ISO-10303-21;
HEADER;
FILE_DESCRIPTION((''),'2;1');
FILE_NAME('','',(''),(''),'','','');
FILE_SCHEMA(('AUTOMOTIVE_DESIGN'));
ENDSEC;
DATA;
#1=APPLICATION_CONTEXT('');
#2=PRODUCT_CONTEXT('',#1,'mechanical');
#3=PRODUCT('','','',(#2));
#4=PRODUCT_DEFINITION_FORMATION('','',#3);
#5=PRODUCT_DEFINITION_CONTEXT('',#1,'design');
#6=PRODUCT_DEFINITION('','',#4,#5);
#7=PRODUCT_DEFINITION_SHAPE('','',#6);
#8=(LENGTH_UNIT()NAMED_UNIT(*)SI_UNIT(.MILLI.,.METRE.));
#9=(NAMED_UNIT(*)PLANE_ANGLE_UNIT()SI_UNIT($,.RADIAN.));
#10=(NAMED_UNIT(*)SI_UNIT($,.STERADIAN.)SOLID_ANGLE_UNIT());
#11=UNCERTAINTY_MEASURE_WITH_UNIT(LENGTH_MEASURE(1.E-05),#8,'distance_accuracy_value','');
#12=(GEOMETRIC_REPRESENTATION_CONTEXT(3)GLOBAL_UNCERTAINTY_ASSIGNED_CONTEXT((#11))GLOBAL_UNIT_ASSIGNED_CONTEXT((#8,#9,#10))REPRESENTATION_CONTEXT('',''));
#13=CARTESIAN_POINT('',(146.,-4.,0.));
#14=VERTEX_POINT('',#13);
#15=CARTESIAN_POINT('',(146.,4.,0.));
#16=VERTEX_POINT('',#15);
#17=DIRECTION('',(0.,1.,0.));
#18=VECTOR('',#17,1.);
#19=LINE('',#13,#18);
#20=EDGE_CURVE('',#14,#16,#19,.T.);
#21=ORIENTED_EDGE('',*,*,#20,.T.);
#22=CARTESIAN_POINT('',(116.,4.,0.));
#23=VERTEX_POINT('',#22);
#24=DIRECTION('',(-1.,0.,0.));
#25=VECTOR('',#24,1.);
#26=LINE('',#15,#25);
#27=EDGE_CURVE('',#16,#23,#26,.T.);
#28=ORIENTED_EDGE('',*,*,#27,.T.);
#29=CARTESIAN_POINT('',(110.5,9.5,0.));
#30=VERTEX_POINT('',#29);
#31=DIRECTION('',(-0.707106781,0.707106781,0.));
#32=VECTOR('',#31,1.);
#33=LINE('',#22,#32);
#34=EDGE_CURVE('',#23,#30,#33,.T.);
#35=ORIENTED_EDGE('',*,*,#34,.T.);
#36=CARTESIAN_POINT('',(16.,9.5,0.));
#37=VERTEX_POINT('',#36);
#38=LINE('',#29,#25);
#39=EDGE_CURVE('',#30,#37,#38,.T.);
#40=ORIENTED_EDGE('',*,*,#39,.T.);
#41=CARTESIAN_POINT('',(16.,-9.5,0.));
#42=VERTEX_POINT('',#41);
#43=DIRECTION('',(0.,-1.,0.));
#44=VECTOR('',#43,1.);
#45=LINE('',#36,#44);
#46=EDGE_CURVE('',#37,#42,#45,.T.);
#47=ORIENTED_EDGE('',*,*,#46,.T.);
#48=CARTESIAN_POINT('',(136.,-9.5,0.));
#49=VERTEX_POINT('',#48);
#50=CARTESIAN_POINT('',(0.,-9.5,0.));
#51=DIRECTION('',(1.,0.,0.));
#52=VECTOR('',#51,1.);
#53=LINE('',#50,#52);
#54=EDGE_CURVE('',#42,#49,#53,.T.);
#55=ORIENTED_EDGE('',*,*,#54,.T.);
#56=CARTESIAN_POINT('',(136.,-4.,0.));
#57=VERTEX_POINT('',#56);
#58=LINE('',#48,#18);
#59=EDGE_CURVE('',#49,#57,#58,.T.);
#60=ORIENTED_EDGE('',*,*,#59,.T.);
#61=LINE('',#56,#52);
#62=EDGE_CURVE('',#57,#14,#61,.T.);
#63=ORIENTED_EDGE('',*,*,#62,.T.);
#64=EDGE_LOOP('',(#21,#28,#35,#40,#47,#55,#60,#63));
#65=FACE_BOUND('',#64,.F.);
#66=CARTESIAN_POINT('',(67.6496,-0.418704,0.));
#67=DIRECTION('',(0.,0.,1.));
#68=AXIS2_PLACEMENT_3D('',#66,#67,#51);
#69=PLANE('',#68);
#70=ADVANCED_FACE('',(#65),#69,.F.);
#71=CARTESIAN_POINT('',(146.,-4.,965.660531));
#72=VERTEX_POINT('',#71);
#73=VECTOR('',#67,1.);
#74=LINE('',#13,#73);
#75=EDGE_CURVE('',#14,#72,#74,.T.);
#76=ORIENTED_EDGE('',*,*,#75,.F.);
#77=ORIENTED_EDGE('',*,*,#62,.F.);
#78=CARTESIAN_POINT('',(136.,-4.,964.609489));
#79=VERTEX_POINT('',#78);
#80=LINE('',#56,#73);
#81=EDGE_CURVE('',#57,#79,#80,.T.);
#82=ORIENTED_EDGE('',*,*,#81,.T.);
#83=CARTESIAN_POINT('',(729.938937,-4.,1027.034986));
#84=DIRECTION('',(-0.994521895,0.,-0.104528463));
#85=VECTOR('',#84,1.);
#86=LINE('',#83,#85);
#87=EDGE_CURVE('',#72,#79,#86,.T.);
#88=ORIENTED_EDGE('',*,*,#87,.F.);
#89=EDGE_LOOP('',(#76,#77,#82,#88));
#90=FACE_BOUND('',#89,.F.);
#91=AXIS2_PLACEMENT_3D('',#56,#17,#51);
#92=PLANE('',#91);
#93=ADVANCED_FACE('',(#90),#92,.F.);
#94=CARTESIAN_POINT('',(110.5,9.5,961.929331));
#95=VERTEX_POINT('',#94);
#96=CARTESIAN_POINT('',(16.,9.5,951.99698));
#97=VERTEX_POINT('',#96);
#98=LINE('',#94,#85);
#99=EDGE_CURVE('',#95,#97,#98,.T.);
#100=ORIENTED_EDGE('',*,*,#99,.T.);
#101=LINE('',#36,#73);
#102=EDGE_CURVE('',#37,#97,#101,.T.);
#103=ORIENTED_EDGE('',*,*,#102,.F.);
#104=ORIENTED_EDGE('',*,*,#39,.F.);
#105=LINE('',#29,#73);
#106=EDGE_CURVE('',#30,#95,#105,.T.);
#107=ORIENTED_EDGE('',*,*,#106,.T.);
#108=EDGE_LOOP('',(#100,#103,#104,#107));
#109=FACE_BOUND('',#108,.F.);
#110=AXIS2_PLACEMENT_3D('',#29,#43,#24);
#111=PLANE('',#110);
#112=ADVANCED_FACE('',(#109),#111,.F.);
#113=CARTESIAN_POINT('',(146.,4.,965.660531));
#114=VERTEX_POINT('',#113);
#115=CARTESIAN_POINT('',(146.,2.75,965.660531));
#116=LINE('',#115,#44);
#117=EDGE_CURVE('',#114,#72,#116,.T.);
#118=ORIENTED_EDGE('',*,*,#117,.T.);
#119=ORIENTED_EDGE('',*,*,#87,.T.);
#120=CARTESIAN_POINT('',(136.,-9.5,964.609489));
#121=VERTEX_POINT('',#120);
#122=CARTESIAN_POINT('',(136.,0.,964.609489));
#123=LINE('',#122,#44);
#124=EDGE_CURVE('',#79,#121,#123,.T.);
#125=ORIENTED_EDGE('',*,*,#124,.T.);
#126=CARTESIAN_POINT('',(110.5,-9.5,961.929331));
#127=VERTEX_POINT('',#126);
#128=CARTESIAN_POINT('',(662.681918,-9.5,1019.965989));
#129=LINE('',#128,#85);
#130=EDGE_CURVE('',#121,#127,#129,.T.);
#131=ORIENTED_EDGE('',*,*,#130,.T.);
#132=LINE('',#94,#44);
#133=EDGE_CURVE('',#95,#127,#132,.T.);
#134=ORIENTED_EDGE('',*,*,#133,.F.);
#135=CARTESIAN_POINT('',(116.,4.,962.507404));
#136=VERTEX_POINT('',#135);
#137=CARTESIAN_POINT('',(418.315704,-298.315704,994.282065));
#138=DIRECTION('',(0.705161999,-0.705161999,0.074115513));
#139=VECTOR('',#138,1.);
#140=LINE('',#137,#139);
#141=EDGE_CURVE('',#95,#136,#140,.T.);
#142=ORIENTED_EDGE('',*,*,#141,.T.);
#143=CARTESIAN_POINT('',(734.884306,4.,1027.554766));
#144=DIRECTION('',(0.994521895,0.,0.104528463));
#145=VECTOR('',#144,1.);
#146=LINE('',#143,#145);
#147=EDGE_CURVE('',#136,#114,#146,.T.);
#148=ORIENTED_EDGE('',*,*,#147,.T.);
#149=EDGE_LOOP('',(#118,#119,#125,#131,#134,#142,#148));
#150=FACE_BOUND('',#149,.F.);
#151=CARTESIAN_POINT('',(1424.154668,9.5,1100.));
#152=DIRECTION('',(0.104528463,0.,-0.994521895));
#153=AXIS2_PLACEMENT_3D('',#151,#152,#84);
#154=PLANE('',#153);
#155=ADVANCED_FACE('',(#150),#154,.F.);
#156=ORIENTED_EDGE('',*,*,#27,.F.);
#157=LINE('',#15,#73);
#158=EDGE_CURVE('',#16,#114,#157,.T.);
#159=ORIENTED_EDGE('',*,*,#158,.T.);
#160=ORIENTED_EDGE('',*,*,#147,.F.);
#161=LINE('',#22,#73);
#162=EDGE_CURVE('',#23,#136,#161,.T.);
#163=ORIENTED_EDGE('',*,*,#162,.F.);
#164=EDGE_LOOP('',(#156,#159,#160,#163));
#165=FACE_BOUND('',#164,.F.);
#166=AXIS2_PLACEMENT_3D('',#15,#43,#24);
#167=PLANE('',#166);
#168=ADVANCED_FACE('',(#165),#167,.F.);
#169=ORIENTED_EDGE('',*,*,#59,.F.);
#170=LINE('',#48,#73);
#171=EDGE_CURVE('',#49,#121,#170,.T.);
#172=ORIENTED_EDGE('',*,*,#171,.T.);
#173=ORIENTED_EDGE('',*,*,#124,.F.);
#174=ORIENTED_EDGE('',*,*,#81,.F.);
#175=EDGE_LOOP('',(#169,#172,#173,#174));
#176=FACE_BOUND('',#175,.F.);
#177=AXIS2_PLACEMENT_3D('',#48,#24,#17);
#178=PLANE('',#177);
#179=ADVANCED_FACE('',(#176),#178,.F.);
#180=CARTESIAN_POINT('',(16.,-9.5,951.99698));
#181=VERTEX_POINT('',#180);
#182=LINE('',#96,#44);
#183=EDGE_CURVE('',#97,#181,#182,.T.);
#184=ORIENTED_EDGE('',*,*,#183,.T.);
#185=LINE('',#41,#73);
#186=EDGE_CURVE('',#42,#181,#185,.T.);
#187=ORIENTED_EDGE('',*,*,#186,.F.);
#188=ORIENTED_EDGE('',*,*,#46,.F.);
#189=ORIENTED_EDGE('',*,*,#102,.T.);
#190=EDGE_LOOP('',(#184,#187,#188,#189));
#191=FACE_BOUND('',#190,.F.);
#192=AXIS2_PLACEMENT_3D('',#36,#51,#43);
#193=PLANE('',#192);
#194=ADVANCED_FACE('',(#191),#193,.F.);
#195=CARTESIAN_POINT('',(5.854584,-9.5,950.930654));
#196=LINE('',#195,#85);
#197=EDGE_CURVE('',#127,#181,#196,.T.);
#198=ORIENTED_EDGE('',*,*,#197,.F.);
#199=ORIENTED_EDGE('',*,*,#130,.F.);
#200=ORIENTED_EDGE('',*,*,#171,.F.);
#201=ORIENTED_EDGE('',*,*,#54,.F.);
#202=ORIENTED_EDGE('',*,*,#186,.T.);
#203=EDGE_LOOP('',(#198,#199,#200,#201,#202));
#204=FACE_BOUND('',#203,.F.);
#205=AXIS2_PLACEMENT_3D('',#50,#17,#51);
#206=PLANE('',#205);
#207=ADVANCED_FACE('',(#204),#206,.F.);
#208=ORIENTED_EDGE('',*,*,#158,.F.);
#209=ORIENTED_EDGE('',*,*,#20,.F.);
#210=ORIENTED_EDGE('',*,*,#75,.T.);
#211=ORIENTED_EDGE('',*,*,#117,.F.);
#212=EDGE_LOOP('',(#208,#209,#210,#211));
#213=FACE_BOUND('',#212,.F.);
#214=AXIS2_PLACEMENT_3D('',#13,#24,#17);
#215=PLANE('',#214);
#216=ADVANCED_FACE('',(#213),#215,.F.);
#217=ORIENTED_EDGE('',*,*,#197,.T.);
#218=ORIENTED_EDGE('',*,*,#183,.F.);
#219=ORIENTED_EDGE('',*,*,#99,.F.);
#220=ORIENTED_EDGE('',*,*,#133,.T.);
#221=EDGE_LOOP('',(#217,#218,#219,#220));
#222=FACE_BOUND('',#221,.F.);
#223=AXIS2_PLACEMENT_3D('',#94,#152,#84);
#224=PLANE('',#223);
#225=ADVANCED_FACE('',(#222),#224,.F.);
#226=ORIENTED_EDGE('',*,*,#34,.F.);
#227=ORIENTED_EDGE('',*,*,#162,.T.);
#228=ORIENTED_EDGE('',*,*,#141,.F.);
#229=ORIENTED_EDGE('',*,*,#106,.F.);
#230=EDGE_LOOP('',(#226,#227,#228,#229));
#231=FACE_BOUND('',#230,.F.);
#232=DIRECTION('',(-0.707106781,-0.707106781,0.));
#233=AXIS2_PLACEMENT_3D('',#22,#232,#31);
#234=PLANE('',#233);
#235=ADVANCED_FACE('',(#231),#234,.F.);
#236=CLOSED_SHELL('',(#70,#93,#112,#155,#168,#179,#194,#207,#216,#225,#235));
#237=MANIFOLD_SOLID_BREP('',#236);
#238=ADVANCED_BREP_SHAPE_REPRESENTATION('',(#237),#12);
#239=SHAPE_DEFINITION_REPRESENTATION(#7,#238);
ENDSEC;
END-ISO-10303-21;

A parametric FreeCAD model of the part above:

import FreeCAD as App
import Part
import Sketcher

V = App.Vector
Q = App.Units.Quantity

doc = App.newDocument("Part")
body = doc.addObject("PartDesign::Body", "Body")

# Sketch on XY plane
sketch1 = body.newObject("Sketcher::SketchObject", "Sketch")
sketch1.AttachmentSupport = (doc.getObject("XY_Plane"), [""])
sketch1.MapMode = "FlatFace"
sketch1.addGeometry(Part.LineSegment(V(0, -4, 0), V(0, -10, 0)), False)
sketch1.addGeometry(Part.LineSegment(V(0, -10, 0), V(136, -10, 0)), False)
sketch1.addGeometry(Part.LineSegment(V(136, -10, 0), V(136, -4, 0)), False)
sketch1.addGeometry(Part.LineSegment(V(136, -4, 0), V(146, -4, 0)), False)
sketch1.addGeometry(Part.LineSegment(V(146, -4, 0), V(146, 4, 0)), False)
sketch1.addGeometry(Part.LineSegment(V(146, 4, 0), V(116, 4, 0)), False)
sketch1.addGeometry(Part.LineSegment(V(116, 4, 0), V(110, 10, 0)), False)
sketch1.addGeometry(Part.LineSegment(V(110, 10, 0), V(0, 10, 0)), False)
sketch1.addGeometry(Part.LineSegment(V(0, 10, 0), V(0, 4, 0)), False)
sketch1.addGeometry(Part.LineSegment(V(0, 4, 0), V(12, 4, 0)), False)
sketch1.addGeometry(Part.LineSegment(V(12, 4, 0), V(12, -4, 0)), False)
sketch1.addGeometry(Part.LineSegment(V(12, -4, 0), V(0, -4, 0)), False)
sketch1.addConstraint(Sketcher.Constraint("Coincident", 0, 2, 1, 1))
sketch1.addConstraint(Sketcher.Constraint("Coincident", 1, 2, 2, 1))
sketch1.addConstraint(Sketcher.Constraint("Coincident", 2, 2, 3, 1))
sketch1.addConstraint(Sketcher.Constraint("Coincident", 3, 2, 4, 1))
sketch1.addConstraint(Sketcher.Constraint("Coincident", 4, 2, 5, 1))
sketch1.addConstraint(Sketcher.Constraint("Coincident", 5, 2, 6, 1))
sketch1.addConstraint(Sketcher.Constraint("Coincident", 6, 2, 7, 1))
sketch1.addConstraint(Sketcher.Constraint("Coincident", 7, 2, 8, 1))
sketch1.addConstraint(Sketcher.Constraint("Coincident", 8, 2, 9, 1))
sketch1.addConstraint(Sketcher.Constraint("Coincident", 9, 2, 10, 1))
sketch1.addConstraint(Sketcher.Constraint("Coincident", 10, 2, 11, 1))
sketch1.addConstraint(Sketcher.Constraint("Coincident", 11, 2, 0, 1))
sketch1.addConstraint(Sketcher.Constraint("Vertical", 0))
sketch1.addConstraint(Sketcher.Constraint("Horizontal", 1))
sketch1.addConstraint(Sketcher.Constraint("Vertical", 2))
sketch1.addConstraint(Sketcher.Constraint("Horizontal", 3))
sketch1.addConstraint(Sketcher.Constraint("Vertical", 4))
sketch1.addConstraint(Sketcher.Constraint("Horizontal", 5))
sketch1.addConstraint(Sketcher.Constraint("Horizontal", 7))
sketch1.addConstraint(Sketcher.Constraint("Vertical", 8))
sketch1.addConstraint(Sketcher.Constraint("Horizontal", 9))
sketch1.addConstraint(Sketcher.Constraint("Vertical", 10))
sketch1.addConstraint(Sketcher.Constraint("Horizontal", 11))
sketch1.addConstraint(Sketcher.Constraint("Symmetric", 0, 2, 7, 2, -1, 1))
sketch1.addConstraint(Sketcher.Constraint("Symmetric", 8, 2, 11, 2, -1))
sketch1.addConstraint(Sketcher.Constraint("Horizontal", 5, 2, 8, 2))
sketch1.addConstraint(Sketcher.Constraint("Horizontal", 3, 2, 10, 2))
sketch1.addConstraint(Sketcher.Constraint("DistanceX", 1, 1, 1, 2, Q("136 mm")))
sketch1.addConstraint(Sketcher.Constraint("DistanceX", 3, 1, 3, 2, Q("10 mm")))
sketch1.addConstraint(Sketcher.Constraint("DistanceX", 5, 2, 5, 1, Q("30 mm")))
sketch1.addConstraint(Sketcher.Constraint("DistanceX", 9, 1, 9, 2, Q("12 mm")))
sketch1.addConstraint(Sketcher.Constraint("DistanceY", 4, 1, 4, 2, Q("8 mm")))
sketch1.addConstraint(Sketcher.Constraint("Angle", 6, Q("135 deg")))
sketch1.addConstraint(Sketcher.Constraint("DistanceX", 7, 2, 7, 1, Q("110.5 mm")))
pad1 = body.newObject("PartDesign::Pad", "Pad")
pad1.Profile = sketch1
pad1.Length = 1100

# Sketch on XY plane
sketch2 = body.newObject("Sketcher::SketchObject", "Sketch001")
sketch2.AttachmentSupport = (doc.getObject("XY_Plane"), [""])
sketch2.MapMode = "FlatFace"
sketch2.addGeometry(Part.LineSegment(V(0, 10, 0), V(16, 10, 0)), False)
sketch2.addGeometry(Part.LineSegment(V(16, 10, 0), V(16, -10, 0)), False)
sketch2.addGeometry(Part.LineSegment(V(16, -10, 0), V(0, -10, 0)), False)
sketch2.addGeometry(Part.LineSegment(V(0, -10, 0), V(0, -4, 0)), False)
sketch2.addGeometry(Part.LineSegment(V(0, -4, 0), V(12, -4, 0)), False)
sketch2.addGeometry(Part.LineSegment(V(12, -4, 0), V(12, 4, 0)), False)
sketch2.addGeometry(Part.LineSegment(V(12, 4, 0), V(0, 4, 0)), False)
sketch2.addGeometry(Part.LineSegment(V(0, 4, 0), V(0, 10, 0)), False)
sketch2.addConstraint(Sketcher.Constraint("Coincident", 0, 2, 1, 1))
sketch2.addConstraint(Sketcher.Constraint("Coincident", 1, 2, 2, 1))
sketch2.addConstraint(Sketcher.Constraint("Coincident", 2, 2, 3, 1))
sketch2.addConstraint(Sketcher.Constraint("Coincident", 3, 2, 4, 1))
sketch2.addConstraint(Sketcher.Constraint("Coincident", 4, 2, 5, 1))
sketch2.addConstraint(Sketcher.Constraint("Coincident", 5, 2, 6, 1))
sketch2.addConstraint(Sketcher.Constraint("Coincident", 6, 2, 7, 1))
sketch2.addConstraint(Sketcher.Constraint("Coincident", 7, 2, 0, 1))
sketch2.addConstraint(Sketcher.Constraint("Horizontal", 0))
sketch2.addConstraint(Sketcher.Constraint("Vertical", 1))
sketch2.addConstraint(Sketcher.Constraint("Horizontal", 2))
sketch2.addConstraint(Sketcher.Constraint("Vertical", 3))
sketch2.addConstraint(Sketcher.Constraint("Horizontal", 4))
sketch2.addConstraint(Sketcher.Constraint("Vertical", 5))
sketch2.addConstraint(Sketcher.Constraint("Horizontal", 6))
sketch2.addConstraint(Sketcher.Constraint("Vertical", 7))
sketch2.addConstraint(Sketcher.Constraint("Symmetric", 3, 2, 6, 2, -1, 1))
sketch2.addConstraint(Sketcher.Constraint("Symmetric", 2, 2, 7, 2, -1))
sketch2.addConstraint(Sketcher.Constraint("DistanceX", 0, 1, 0, 2, Q("16 mm")))
sketch2.addConstraint(Sketcher.Constraint("DistanceX", 4, 1, 4, 2, Q("12 mm")))
sketch2.addConstraint(Sketcher.Constraint("DistanceY", 1, 2, 1, 1, Q("19 mm")))
sketch2.addConstraint(Sketcher.Constraint("DistanceY", 5, 1, 5, 2, Q("8 mm")))
pocket1 = body.newObject("PartDesign::Pocket", "Pocket")
pocket1.Profile = sketch2
pocket1.Type = "ThroughAll"
pocket1.Reversed = True

# Sketch on XZ plane
sketch3 = body.newObject("Sketcher::SketchObject", "Sketch002")
sketch3.AttachmentSupport = (doc.getObject("XZ_Plane"), [""])
sketch3.MapMode = "FlatFace"
sketch3.AttachmentOffset = App.Placement(V(0, 0, -9.5), App.Rotation())
sketch3.addGeometry(Part.LineSegment(V(1424, 1100, 0), V(110, 962, 0)), False)
sketch3.addGeometry(Part.LineSegment(V(110, 962, 0), V(16, 952, 0)), False)
sketch3.addGeometry(Part.LineSegment(V(16, 952, 0), V(-3, 950, 0)), False)
sketch3.addGeometry(Part.LineSegment(V(-3, 950, 0), V(-3, 1100, 0)), False)
sketch3.addGeometry(Part.LineSegment(V(-3, 1100, 0), V(1424, 1100, 0)), False)
sketch3.addConstraint(Sketcher.Constraint("Coincident", 0, 2, 1, 1))
sketch3.addConstraint(Sketcher.Constraint("Coincident", 1, 2, 2, 1))
sketch3.addConstraint(Sketcher.Constraint("Coincident", 2, 2, 3, 1))
sketch3.addConstraint(Sketcher.Constraint("Coincident", 3, 2, 4, 1))
sketch3.addConstraint(Sketcher.Constraint("Coincident", 4, 2, 0, 1))
sketch3.addConstraint(Sketcher.Constraint("Vertical", 3))
sketch3.addConstraint(Sketcher.Constraint("Horizontal", 4))
sketch3.addConstraint(Sketcher.Constraint("Parallel", 0, 1))
sketch3.addConstraint(Sketcher.Constraint("Parallel", 1, 2))
sketch3.addConstraint(Sketcher.Constraint("DistanceY", 3, 1, 3, 2, Q("150 mm")))
sketch3.addConstraint(Sketcher.Constraint("Angle", 0, Q("-174 deg")))
sketch3.addConstraint(Sketcher.Constraint("DistanceX", -1, 1, 1, 2, Q("16 mm")))
sketch3.addConstraint(Sketcher.Constraint("DistanceX", 2, 2, -1, 1, Q("3 mm")))
sketch3.addConstraint(Sketcher.Constraint("DistanceY", -1, 1, 2, 2, Q("950 mm")))
sketch3.addConstraint(Sketcher.Constraint("DistanceX", -1, 1, 0, 2, Q("110.5 mm")))
pocket2 = body.newObject("PartDesign::Pocket", "Pocket001")
pocket2.Profile = sketch3
pocket2.Type = "ThroughAll"
pocket2.Reversed = True

doc.recompute()
